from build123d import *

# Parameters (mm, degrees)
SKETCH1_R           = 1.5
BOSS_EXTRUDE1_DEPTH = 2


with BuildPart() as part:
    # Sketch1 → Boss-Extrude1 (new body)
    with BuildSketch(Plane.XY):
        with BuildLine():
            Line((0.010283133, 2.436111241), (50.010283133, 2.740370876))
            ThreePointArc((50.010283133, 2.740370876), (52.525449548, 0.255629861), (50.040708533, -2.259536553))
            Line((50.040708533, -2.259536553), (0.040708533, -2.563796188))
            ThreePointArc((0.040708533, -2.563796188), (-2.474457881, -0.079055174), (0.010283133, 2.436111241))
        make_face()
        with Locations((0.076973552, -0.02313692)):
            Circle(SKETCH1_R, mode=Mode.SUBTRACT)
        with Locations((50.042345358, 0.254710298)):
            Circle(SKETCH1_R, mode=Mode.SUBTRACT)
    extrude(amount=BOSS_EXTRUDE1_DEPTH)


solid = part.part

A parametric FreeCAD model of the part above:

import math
import FreeCAD as App
import Part
import Sketcher
from FreeCAD import Vector

doc = App.newDocument("Part")
body = doc.addObject("PartDesign::Body", "Body")

sketch1 = body.newObject("Sketcher::SketchObject", "Sketch")
sketch1.AttachmentSupport = (doc.getObject("XY_Plane"), [""])
sketch1.MapMode = "FlatFace"
sketch1.addGeometry([
    Part.LineSegment(Vector(50, 2.7, 0), Vector(0, 2.4, 0)),
    Part.ArcOfCircle(Part.Circle(Vector(0, -0.1, 0), Vector(0, 0, 1), 2.5), math.radians(90), math.radians(270)),
    Part.LineSegment(Vector(0, -2.6, 0), Vector(50, -2.3, 0)),
    Part.ArcOfCircle(Part.Circle(Vector(50, 0.2, 0), Vector(0, 0, 1), 2.5), math.radians(-90), math.radians(90)),
    Part.Circle(Vector(0.1, 0, 0), Vector(0, 0, 1), 1.5),
    Part.Circle(Vector(50, 0.3, 0), Vector(0, 0, 1), 1.5),
], False)
sketch1.addConstraint([
    Sketcher.Constraint("Tangent", 0, 2, 1, 1),
    Sketcher.Constraint("Tangent", 1, 2, 2, 1),
    Sketcher.Constraint("Tangent", 2, 2, 3, 1),
    Sketcher.Constraint("Tangent", 3, 2, 0, 1),
    Sketcher.Constraint("Equal", 1, 3),
    Sketcher.Constraint("Equal", 4, 5),
    Sketcher.Constraint("Diameter", 4, 3.0),
    Sketcher.Constraint("Radius", 1, 2.5),
    Sketcher.Constraint("DistanceX", 1, 3, 3, 3, 50.0),
    Sketcher.Constraint("DistanceY", 5, 3, 0, 2, 2.181401),
    Sketcher.Constraint("DistanceY", 2, 2, 4, 3, 2.2364),
    Sketcher.Constraint("DistanceY", -1, 1, 5, 3, 0.25471),
    Sketcher.Constraint("DistanceX", -1, 1, 1, 2, 0.040709),
    Sketcher.Constraint("DistanceY", -1, 1, 3, 2, 2.740371),
    Sketcher.Constraint("DistanceX", 3, 3, 5, 3, 0.01685),
    Sketcher.Constraint("DistanceX", 4, 3, 5, 3, 49.965372),
])
pad1 = body.newObject("PartDesign::Pad", "Pad")
pad1.Profile = sketch1
pad1.Length = 2

doc.recompute()
